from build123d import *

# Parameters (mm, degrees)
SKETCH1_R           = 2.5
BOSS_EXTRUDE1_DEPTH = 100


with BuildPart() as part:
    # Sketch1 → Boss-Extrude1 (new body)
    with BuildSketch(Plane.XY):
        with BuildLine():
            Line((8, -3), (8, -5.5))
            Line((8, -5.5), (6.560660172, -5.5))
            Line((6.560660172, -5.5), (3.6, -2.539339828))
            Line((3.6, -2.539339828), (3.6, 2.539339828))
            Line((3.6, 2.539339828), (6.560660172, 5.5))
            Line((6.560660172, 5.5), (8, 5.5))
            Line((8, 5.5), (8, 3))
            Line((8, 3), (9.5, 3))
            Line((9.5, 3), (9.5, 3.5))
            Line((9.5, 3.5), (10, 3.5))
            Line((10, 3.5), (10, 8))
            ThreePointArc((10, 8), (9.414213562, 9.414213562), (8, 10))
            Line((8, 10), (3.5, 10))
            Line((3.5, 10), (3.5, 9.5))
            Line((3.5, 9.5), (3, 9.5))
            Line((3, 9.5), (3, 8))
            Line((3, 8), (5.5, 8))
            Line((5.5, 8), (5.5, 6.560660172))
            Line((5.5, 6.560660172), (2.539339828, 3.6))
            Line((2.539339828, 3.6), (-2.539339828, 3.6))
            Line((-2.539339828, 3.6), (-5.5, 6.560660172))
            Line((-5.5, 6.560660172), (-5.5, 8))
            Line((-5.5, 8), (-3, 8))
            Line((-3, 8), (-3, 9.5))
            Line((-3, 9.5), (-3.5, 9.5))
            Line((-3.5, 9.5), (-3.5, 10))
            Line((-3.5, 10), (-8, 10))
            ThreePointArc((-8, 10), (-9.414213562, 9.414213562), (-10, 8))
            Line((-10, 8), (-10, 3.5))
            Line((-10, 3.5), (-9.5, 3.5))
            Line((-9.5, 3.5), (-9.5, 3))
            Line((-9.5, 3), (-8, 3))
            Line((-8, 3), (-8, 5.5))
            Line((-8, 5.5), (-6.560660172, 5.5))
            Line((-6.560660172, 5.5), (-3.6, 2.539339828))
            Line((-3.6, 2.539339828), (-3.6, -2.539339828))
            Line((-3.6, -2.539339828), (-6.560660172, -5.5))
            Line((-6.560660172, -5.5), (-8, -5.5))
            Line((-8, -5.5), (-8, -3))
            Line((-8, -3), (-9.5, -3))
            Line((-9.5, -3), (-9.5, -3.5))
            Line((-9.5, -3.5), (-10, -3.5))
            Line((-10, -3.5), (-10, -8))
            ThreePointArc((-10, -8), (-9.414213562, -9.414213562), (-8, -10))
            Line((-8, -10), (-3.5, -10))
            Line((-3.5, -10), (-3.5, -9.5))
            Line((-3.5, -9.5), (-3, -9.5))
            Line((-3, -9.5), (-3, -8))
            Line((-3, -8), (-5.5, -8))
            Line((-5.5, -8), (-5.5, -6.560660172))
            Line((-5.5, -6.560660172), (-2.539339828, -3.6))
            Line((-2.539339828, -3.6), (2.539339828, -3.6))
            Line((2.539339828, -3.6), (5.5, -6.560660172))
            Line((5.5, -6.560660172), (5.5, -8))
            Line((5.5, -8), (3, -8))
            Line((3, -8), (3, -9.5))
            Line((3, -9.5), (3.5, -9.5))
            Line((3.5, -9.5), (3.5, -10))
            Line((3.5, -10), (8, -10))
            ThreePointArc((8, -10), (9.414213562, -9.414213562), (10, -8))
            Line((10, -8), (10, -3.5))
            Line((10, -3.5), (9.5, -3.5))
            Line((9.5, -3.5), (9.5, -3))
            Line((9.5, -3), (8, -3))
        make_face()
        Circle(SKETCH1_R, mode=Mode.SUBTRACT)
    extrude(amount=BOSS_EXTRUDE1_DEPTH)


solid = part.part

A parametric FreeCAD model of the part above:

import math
import FreeCAD as App
import Part
import Sketcher
from FreeCAD import Vector
Q = App.Units.Quantity

doc = App.newDocument("Part")
body = doc.addObject("PartDesign::Body", "Body")

sketch1 = body.newObject("Sketcher::SketchObject", "Sketch")
sketch1.AttachmentSupport = (doc.getObject("XY_Plane"), [""])
sketch1.MapMode = "FlatFace"
sketch1.addGeometry([
    Part.LineSegment(Vector(8, -3, 0), Vector(8, -5.5, 0)),
    Part.LineSegment(Vector(8, -5.5, 0), Vector(6.56066, -5.5, 0)),
    Part.LineSegment(Vector(6.56066, -5.5, 0), Vector(3.6, -2.53934, 0)),
    Part.LineSegment(Vector(3.6, -2.53934, 0), Vector(3.6, 2.53934, 0)),
    Part.LineSegment(Vector(3.6, 2.53934, 0), Vector(6.56066, 5.5, 0)),
    Part.LineSegment(Vector(6.56066, 5.5, 0), Vector(8, 5.5, 0)),
    Part.LineSegment(Vector(8, 5.5, 0), Vector(8, 3, 0)),
    Part.LineSegment(Vector(8, 3, 0), Vector(9.5, 3, 0)),
    Part.LineSegment(Vector(9.5, 3, 0), Vector(9.5, 3.5, 0)),
    Part.LineSegment(Vector(9.5, 3.5, 0), Vector(10, 3.5, 0)),
    Part.LineSegment(Vector(10, 3.5, 0), Vector(10, 8, 0)),
    Part.ArcOfCircle(Part.Circle(Vector(8, 8, 0), Vector(0, 0, 1), 2), math.radians(0), math.radians(90)),
    Part.LineSegment(Vector(8, 10, 0), Vector(3.5, 10, 0)),
    Part.LineSegment(Vector(3.5, 10, 0), Vector(3.5, 9.5, 0)),
    Part.LineSegment(Vector(3.5, 9.5, 0), Vector(3, 9.5, 0)),
    Part.LineSegment(Vector(3, 9.5, 0), Vector(3, 8, 0)),
    Part.LineSegment(Vector(3, 8, 0), Vector(5.5, 8, 0)),
    Part.LineSegment(Vector(5.5, 8, 0), Vector(5.5, 6.56066, 0)),
    Part.LineSegment(Vector(5.5, 6.56066, 0), Vector(2.53934, 3.6, 0)),
    Part.LineSegment(Vector(2.53934, 3.6, 0), Vector(-2.53934, 3.6, 0)),
    Part.LineSegment(Vector(-2.53934, 3.6, 0), Vector(-5.5, 6.56066, 0)),
    Part.LineSegment(Vector(-5.5, 6.56066, 0), Vector(-5.5, 8, 0)),
    Part.LineSegment(Vector(-5.5, 8, 0), Vector(-3, 8, 0)),
    Part.LineSegment(Vector(-3, 8, 0), Vector(-3, 9.5, 0)),
    Part.LineSegment(Vector(-3, 9.5, 0), Vector(-3.5, 9.5, 0)),
    Part.LineSegment(Vector(-3.5, 9.5, 0), Vector(-3.5, 10, 0)),
    Part.LineSegment(Vector(-3.5, 10, 0), Vector(-8, 10, 0)),
    Part.ArcOfCircle(Part.Circle(Vector(-8, 8, 0), Vector(0, 0, 1), 2), math.radians(90), math.radians(180)),
    Part.LineSegment(Vector(-10, 8, 0), Vector(-10, 3.5, 0)),
    Part.LineSegment(Vector(-10, 3.5, 0), Vector(-9.5, 3.5, 0)),
    Part.LineSegment(Vector(-9.5, 3.5, 0), Vector(-9.5, 3, 0)),
    Part.LineSegment(Vector(-9.5, 3, 0), Vector(-8, 3, 0)),
    Part.LineSegment(Vector(-8, 3, 0), Vector(-8, 5.5, 0)),
    Part.LineSegment(Vector(-8, 5.5, 0), Vector(-6.56066, 5.5, 0)),
    Part.LineSegment(Vector(-6.56066, 5.5, 0), Vector(-3.6, 2.53934, 0)),
    Part.LineSegment(Vector(-3.6, 2.53934, 0), Vector(-3.6, -2.53934, 0)),
    Part.LineSegment(Vector(-3.6, -2.53934, 0), Vector(-6.56066, -5.5, 0)),
    Part.LineSegment(Vector(-6.56066, -5.5, 0), Vector(-8, -5.5, 0)),
    Part.LineSegment(Vector(-8, -5.5, 0), Vector(-8, -3, 0)),
    Part.LineSegment(Vector(-8, -3, 0), Vector(-9.5, -3, 0)),
    Part.LineSegment(Vector(-9.5, -3, 0), Vector(-9.5, -3.5, 0)),
    Part.LineSegment(Vector(-9.5, -3.5, 0), Vector(-10, -3.5, 0)),
    Part.LineSegment(Vector(-10, -3.5, 0), Vector(-10, -8, 0)),
    Part.ArcOfCircle(Part.Circle(Vector(-8, -8, 0), Vector(0, 0, 1), 2), math.radians(-180), math.radians(-90)),
    Part.LineSegment(Vector(-8, -10, 0), Vector(-3.5, -10, 0)),
    Part.LineSegment(Vector(-3.5, -10, 0), Vector(-3.5, -9.5, 0)),
    Part.LineSegment(Vector(-3.5, -9.5, 0), Vector(-3, -9.5, 0)),
    Part.LineSegment(Vector(-3, -9.5, 0), Vector(-3, -8, 0)),
    Part.LineSegment(Vector(-3, -8, 0), Vector(-5.5, -8, 0)),
    Part.LineSegment(Vector(-5.5, -8, 0), Vector(-5.5, -6.56066, 0)),
    Part.LineSegment(Vector(-5.5, -6.56066, 0), Vector(-2.53934, -3.6, 0)),
    Part.LineSegment(Vector(-2.53934, -3.6, 0), Vector(2.53934, -3.6, 0)),
    Part.LineSegment(Vector(2.53934, -3.6, 0), Vector(5.5, -6.56066, 0)),
    Part.LineSegment(Vector(5.5, -6.56066, 0), Vector(5.5, -8, 0)),
    Part.LineSegment(Vector(5.5, -8, 0), Vector(3, -8, 0)),
    Part.LineSegment(Vector(3, -8, 0), Vector(3, -9.5, 0)),
    Part.LineSegment(Vector(3, -9.5, 0), Vector(3.5, -9.5, 0)),
    Part.LineSegment(Vector(3.5, -9.5, 0), Vector(3.5, -10, 0)),
    Part.LineSegment(Vector(3.5, -10, 0), Vector(8, -10, 0)),
    Part.ArcOfCircle(Part.Circle(Vector(8, -8, 0), Vector(0, 0, 1), 2), math.radians(-90), math.radians(0)),
    Part.LineSegment(Vector(10, -8, 0), Vector(10, -3.5, 0)),
    Part.LineSegment(Vector(10, -3.5, 0), Vector(9.5, -3.5, 0)),
    Part.LineSegment(Vector(9.5, -3.5, 0), Vector(9.5, -3, 0)),
    Part.LineSegment(Vector(9.5, -3, 0), Vector(8, -3, 0)),
    Part.Circle(Vector(0, 0, 0), Vector(0, 0, 1), 2.5),
], False)
sketch1.addConstraint([
    Sketcher.Constraint("Coincident", 0, 2, 1, 1),
    Sketcher.Constraint("Coincident", 1, 2, 2, 1),
    Sketcher.Constraint("Coincident", 2, 2, 3, 1),
    Sketcher.Constraint("Coincident", 3, 2, 4, 1),
    Sketcher.Constraint("Coincident", 4, 2, 5, 1),
    Sketcher.Constraint("Coincident", 5, 2, 6, 1),
    Sketcher.Constraint("Coincident", 6, 2, 7, 1),
    Sketcher.Constraint("Coincident", 7, 2, 8, 1),
    Sketcher.Constraint("Coincident", 8, 2, 9, 1),
    Sketcher.Constraint("Coincident", 9, 2, 10, 1),
    Sketcher.Constraint("Tangent", 10, 2, 11, 1),
    Sketcher.Constraint("Tangent", 11, 2, 12, 1),
    Sketcher.Constraint("Coincident", 12, 2, 13, 1),
    Sketcher.Constraint("Coincident", 13, 2, 14, 1),
    Sketcher.Constraint("Coincident", 14, 2, 15, 1),
    Sketcher.Constraint("Coincident", 15, 2, 16, 1),
    Sketcher.Constraint("Coincident", 16, 2, 17, 1),
    Sketcher.Constraint("Coincident", 17, 2, 18, 1),
    Sketcher.Constraint("Coincident", 18, 2, 19, 1),
    Sketcher.Constraint("Coincident", 19, 2, 20, 1),
    Sketcher.Constraint("Coincident", 20, 2, 21, 1),
    Sketcher.Constraint("Coincident", 21, 2, 22, 1),
    Sketcher.Constraint("Coincident", 22, 2, 23, 1),
    Sketcher.Constraint("Coincident", 23, 2, 24, 1),
    Sketcher.Constraint("Coincident", 24, 2, 25, 1),
    Sketcher.Constraint("Coincident", 25, 2, 26, 1),
    Sketcher.Constraint("Tangent", 26, 2, 27, 1),
    Sketcher.Constraint("Tangent", 27, 2, 28, 1),
    Sketcher.Constraint("Coincident", 28, 2, 29, 1),
    Sketcher.Constraint("Coincident", 29, 2, 30, 1),
    Sketcher.Constraint("Coincident", 30, 2, 31, 1),
    Sketcher.Constraint("Coincident", 31, 2, 32, 1),
    Sketcher.Constraint("Coincident", 32, 2, 33, 1),
    Sketcher.Constraint("Coincident", 33, 2, 34, 1),
    Sketcher.Constraint("Coincident", 34, 2, 35, 1),
    Sketcher.Constraint("Coincident", 35, 2, 36, 1),
    Sketcher.Constraint("Coincident", 36, 2, 37, 1),
    Sketcher.Constraint("Coincident", 37, 2, 38, 1),
    Sketcher.Constraint("Coincident", 38, 2, 39, 1),
    Sketcher.Constraint("Coincident", 39, 2, 40, 1),
    Sketcher.Constraint("Coincident", 40, 2, 41, 1),
    Sketcher.Constraint("Coincident", 41, 2, 42, 1),
    Sketcher.Constraint("Tangent", 42, 2, 43, 1),
    Sketcher.Constraint("Tangent", 43, 2, 44, 1),
    Sketcher.Constraint("Coincident", 44, 2, 45, 1),
    Sketcher.Constraint("Coincident", 45, 2, 46, 1),
    Sketcher.Constraint("Coincident", 46, 2, 47, 1),
    Sketcher.Constraint("Coincident", 47, 2, 48, 1),
    Sketcher.Constraint("Coincident", 48, 2, 49, 1),
    Sketcher.Constraint("Coincident", 49, 2, 50, 1),
    Sketcher.Constraint("Coincident", 50, 2, 51, 1),
    Sketcher.Constraint("Coincident", 51, 2, 52, 1),
    Sketcher.Constraint("Coincident", 52, 2, 53, 1),
    Sketcher.Constraint("Coincident", 53, 2, 54, 1),
    Sketcher.Constraint("Coincident", 54, 2, 55, 1),
    Sketcher.Constraint("Coincident", 55, 2, 56, 1),
    Sketcher.Constraint("Coincident", 56, 2, 57, 1),
    Sketcher.Constraint("Coincident", 57, 2, 58, 1),
    Sketcher.Constraint("Tangent", 58, 2, 59, 1),
    Sketcher.Constraint("Tangent", 59, 2, 60, 1),
    Sketcher.Constraint("Coincident", 60, 2, 61, 1),
    Sketcher.Constraint("Coincident", 61, 2, 62, 1),
    Sketcher.Constraint("Coincident", 62, 2, 63, 1),
    Sketcher.Constraint("Coincident", 63, 2, 0, 1),
    Sketcher.Constraint("Vertical", 0),
    Sketcher.Constraint("Horizontal", 1),
    Sketcher.Constraint("Vertical", 3),
    Sketcher.Constraint("Horizontal", 5),
    Sketcher.Constraint("Vertical", 6),
    Sketcher.Constraint("Horizontal", 7),
    Sketcher.Constraint("Vertical", 8),
    Sketcher.Constraint("Horizontal", 9),
    Sketcher.Constraint("Vertical", 10),
    Sketcher.Constraint("Horizontal", 12),
    Sketcher.Constraint("Vertical", 13),
    Sketcher.Constraint("Horizontal", 14),
    Sketcher.Constraint("Vertical", 15),
    Sketcher.Constraint("Horizontal", 16),
    Sketcher.Constraint("Vertical", 17),
    Sketcher.Constraint("Horizontal", 19),
    Sketcher.Constraint("Vertical", 21),
    Sketcher.Constraint("Horizontal", 22),
    Sketcher.Constraint("Vertical", 23),
    Sketcher.Constraint("Horizontal", 24),
    Sketcher.Constraint("Vertical", 25),
    Sketcher.Constraint("Horizontal", 26),
    Sketcher.Constraint("Vertical", 28),
    Sketcher.Constraint("Horizontal", 29),
    Sketcher.Constraint("Vertical", 30),
    Sketcher.Constraint("Horizontal", 31),
    Sketcher.Constraint("Vertical", 32),
    Sketcher.Constraint("Horizontal", 33),
    Sketcher.Constraint("Vertical", 35),
    Sketcher.Constraint("Horizontal", 37),
    Sketcher.Constraint("Vertical", 38),
    Sketcher.Constraint("Horizontal", 39),
    Sketcher.Constraint("Vertical", 40),
    Sketcher.Constraint("Horizontal", 41),
    Sketcher.Constraint("Vertical", 42),
    Sketcher.Constraint("Horizontal", 44),
    Sketcher.Constraint("Vertical", 45),
    Sketcher.Constraint("Horizontal", 46),
    Sketcher.Constraint("Vertical", 47),
    Sketcher.Constraint("Horizontal", 48),
    Sketcher.Constraint("Vertical", 49),
    Sketcher.Constraint("Horizontal", 51),
    Sketcher.Constraint("Vertical", 53),
    Sketcher.Constraint("Horizontal", 54),
    Sketcher.Constraint("Vertical", 55),
    Sketcher.Constraint("Horizontal", 56),
    Sketcher.Constraint("Vertical", 57),
    Sketcher.Constraint("Horizontal", 58),
    Sketcher.Constraint("Vertical", 60),
    Sketcher.Constraint("Horizontal", 61),
    Sketcher.Constraint("Vertical", 62),
    Sketcher.Constraint("Horizontal", 63),
    Sketcher.Constraint("Coincident", 64, 3, -1, 1),
    Sketcher.Constraint("Equal", 11, 27),
    Sketcher.Constraint("Equal", 27, 43),
    Sketcher.Constraint("Equal", 43, 59),
    Sketcher.Constraint("Symmetric", 11, 3, 43, 3, -1, 1),
    Sketcher.Constraint("Symmetric", 27, 3, 59, 3, -1, 1),
    Sketcher.Constraint("Symmetric", 0, 2, 32, 2, -1, 1),
    Sketcher.Constraint("Symmetric", 2, 2, 34, 2, -1, 1),
    Sketcher.Constraint("Symmetric", 4, 2, 36, 2, -1, 1),
    Sketcher.Constraint("Symmetric", 6, 2, 38, 2, -1, 1),
    Sketcher.Constraint("Symmetric", 8, 2, 40, 2, -1, 1),
    Sketcher.Constraint("Symmetric", 13, 2, 45, 2, -1, 1),
    Sketcher.Constraint("Symmetric", 15, 2, 47, 2, -1, 1),
    Sketcher.Constraint("Symmetric", 17, 2, 49, 2, -1, 1),
    Sketcher.Constraint("Symmetric", 18, 2, 50, 2, -1, 1),
    Sketcher.Constraint("Symmetric", 20, 2, 52, 2, -1, 1),
    Sketcher.Constraint("Symmetric", 22, 2, 54, 2, -1, 1),
    Sketcher.Constraint("Symmetric", 24, 2, 56, 2, -1, 1),
    Sketcher.Constraint("Symmetric", 29, 2, 61, 2, -1, 1),
    Sketcher.Constraint("Symmetric", 11, 3, 27, 3, -2),
    Sketcher.Constraint("Symmetric", 17, 2, 20, 2, -2),
    Sketcher.Constraint("Symmetric", 15, 2, 22, 2, -2),
    Sketcher.Constraint("Symmetric", 13, 2, 24, 2, -2),
    Sketcher.Constraint("Symmetric", 8, 2, 29, 2, -2),
    Sketcher.Constraint("Symmetric", 6, 2, 31, 2, -2),
    Sketcher.Constraint("Symmetric", 4, 2, 33, 2, -2),
    Sketcher.Constraint("Perpendicular", 2, 4),
    Sketcher.Constraint("Parallel", 4, 18),
    Sketcher.Constraint("Perpendicular", 18, 20),
    Sketcher.Constraint("Parallel", 20, 34),
    Sketcher.Constraint("Perpendicular", 34, 36),
    Sketcher.Constraint("Perpendicular", 50, 52),
    Sketcher.Constraint("Horizontal", 10, 2, 15, 2),
    Sketcher.Constraint("Horizontal", 3, 2, 34, 2),
    Sketcher.Constraint("Horizontal", 39, 2, 62, 2),
    Sketcher.Constraint("Vertical", 59, 3, 0, 2),
    Sketcher.Constraint("Equal", 9, 14),
    Sketcher.Constraint("Equal", 54, 0),
    Sketcher.Constraint("Equal", 51, 3),
    Sketcher.Constraint("Equal", 61, 8),
    Sketcher.Constraint("Equal", 58, 10),
    Sketcher.Constraint("Equal", 8, 13),
    Sketcher.Constraint("Equal", 37, 17),
    Sketcher.Constraint("Equal", 4, 18),
    Sketcher.Constraint("Diameter", 64, Q("5 mm")),
    Sketcher.Constraint("Radius", 11, Q("2 mm")),
    Sketcher.Constraint("DistanceX", 7, 1, 7, 2, Q("1.5 mm")),
    Sketcher.Constraint("DistanceX", 12, 2, 12, 1, Q("4.5 mm")),
    Sketcher.Constraint("DistanceX", 16, 1, 16, 2, Q("2.5 mm")),
    Sketcher.Constraint("DistanceX", -1, 1, 11, 3, Q("8 mm")),
    Sketcher.Constraint("DistanceX", -1, 1, 2, 2, Q("3.6 mm")),
    Sketcher.Constraint("DistanceX", 1, 2, 1, 1, Q("1.43934 mm")),
])
pad1 = body.newObject("PartDesign::Pad", "Pad")
pad1.Profile = sketch1
pad1.Length = 100

doc.recompute()
